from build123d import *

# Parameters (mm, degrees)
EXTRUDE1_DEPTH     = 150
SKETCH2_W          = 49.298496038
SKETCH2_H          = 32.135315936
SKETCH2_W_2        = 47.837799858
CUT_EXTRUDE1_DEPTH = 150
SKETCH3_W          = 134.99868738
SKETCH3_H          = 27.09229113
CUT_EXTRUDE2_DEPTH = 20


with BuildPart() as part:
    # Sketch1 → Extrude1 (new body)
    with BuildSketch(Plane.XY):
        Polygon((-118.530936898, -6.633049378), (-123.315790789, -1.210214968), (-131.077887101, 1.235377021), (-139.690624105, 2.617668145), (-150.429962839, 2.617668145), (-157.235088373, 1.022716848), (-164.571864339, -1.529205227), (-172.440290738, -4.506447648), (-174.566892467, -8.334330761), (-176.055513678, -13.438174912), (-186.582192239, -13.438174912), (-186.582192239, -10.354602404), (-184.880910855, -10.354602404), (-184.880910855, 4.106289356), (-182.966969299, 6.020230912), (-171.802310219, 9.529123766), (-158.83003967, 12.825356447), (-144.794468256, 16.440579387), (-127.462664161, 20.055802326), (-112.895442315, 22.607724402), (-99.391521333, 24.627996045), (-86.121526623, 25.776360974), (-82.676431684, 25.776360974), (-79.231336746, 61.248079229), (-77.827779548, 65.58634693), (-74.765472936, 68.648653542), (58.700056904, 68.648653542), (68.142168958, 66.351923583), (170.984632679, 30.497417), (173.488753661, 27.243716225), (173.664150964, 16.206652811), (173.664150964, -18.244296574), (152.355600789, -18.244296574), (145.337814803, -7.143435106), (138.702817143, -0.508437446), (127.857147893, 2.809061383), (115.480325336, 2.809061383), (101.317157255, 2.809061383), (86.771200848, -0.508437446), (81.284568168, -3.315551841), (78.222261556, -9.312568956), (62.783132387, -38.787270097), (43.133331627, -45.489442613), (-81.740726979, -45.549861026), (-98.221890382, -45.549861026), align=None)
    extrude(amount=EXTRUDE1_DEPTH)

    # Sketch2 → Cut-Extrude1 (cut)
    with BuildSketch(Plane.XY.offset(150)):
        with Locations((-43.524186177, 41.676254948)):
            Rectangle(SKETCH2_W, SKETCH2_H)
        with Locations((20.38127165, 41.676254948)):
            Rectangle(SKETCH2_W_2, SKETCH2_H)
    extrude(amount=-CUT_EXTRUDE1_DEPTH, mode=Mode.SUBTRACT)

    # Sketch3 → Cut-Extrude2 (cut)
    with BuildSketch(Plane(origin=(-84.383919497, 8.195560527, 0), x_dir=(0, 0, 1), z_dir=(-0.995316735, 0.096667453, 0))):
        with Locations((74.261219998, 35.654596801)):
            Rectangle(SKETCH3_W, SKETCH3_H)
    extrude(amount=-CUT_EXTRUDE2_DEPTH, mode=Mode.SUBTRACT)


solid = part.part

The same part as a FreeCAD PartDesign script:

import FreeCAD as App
import Part
import Sketcher
Q = App.Units.Quantity

doc = App.newDocument("Part")
body = doc.addObject("PartDesign::Body", "Body")

sketch1 = body.newObject("Sketcher::SketchObject", "Sketch")
sketch1.AttachmentSupport = (doc.getObject("XY_Plane"), [""])
sketch1.MapMode = "FlatFace"
sketch1.addGeometry([
    Part.LineSegment(App.Vector(-123.3, -1.2, 0), App.Vector(-118.5, -6.6, 0)),
    Part.LineSegment(App.Vector(-118.5, -6.6, 0), App.Vector(-98.2, -45.5, 0)),
    Part.LineSegment(App.Vector(-98.2, -45.5, 0), App.Vector(-81.7, -45.5, 0)),
    Part.LineSegment(App.Vector(-81.7, -45.5, 0), App.Vector(43.1, -45.5, 0)),
    Part.LineSegment(App.Vector(43.1, -45.5, 0), App.Vector(62.8, -38.8, 0)),
    Part.LineSegment(App.Vector(62.8, -38.8, 0), App.Vector(78.2, -9.3, 0)),
    Part.LineSegment(App.Vector(78.2, -9.3, 0), App.Vector(81.3, -3.3, 0)),
    Part.LineSegment(App.Vector(81.3, -3.3, 0), App.Vector(86.8, -0.5, 0)),
    Part.LineSegment(App.Vector(86.8, -0.5, 0), App.Vector(101.3, 2.8, 0)),
    Part.LineSegment(App.Vector(101.3, 2.8, 0), App.Vector(127.9, 2.8, 0)),
    Part.LineSegment(App.Vector(127.9, 2.8, 0), App.Vector(138.7, -0.5, 0)),
    Part.LineSegment(App.Vector(138.7, -0.5, 0), App.Vector(145.3, -7.1, 0)),
    Part.LineSegment(App.Vector(145.3, -7.1, 0), App.Vector(152.4, -18.2, 0)),
    Part.LineSegment(App.Vector(152.4, -18.2, 0), App.Vector(173.7, -18.2, 0)),
    Part.LineSegment(App.Vector(173.7, -18.2, 0), App.Vector(173.7, 16.2, 0)),
    Part.LineSegment(App.Vector(173.7, 16.2, 0), App.Vector(173.5, 27.2, 0)),
    Part.LineSegment(App.Vector(173.5, 27.2, 0), App.Vector(171, 30.5, 0)),
    Part.LineSegment(App.Vector(171, 30.5, 0), App.Vector(68.1, 66.4, 0)),
    Part.LineSegment(App.Vector(68.1, 66.4, 0), App.Vector(58.7, 68.6, 0)),
    Part.LineSegment(App.Vector(58.7, 68.6, 0), App.Vector(-74.8, 68.6, 0)),
    Part.LineSegment(App.Vector(-74.8, 68.6, 0), App.Vector(-77.8, 65.6, 0)),
    Part.LineSegment(App.Vector(-77.8, 65.6, 0), App.Vector(-79.2, 61.2, 0)),
    Part.LineSegment(App.Vector(-79.2, 61.2, 0), App.Vector(-82.7, 25.8, 0)),
    Part.LineSegment(App.Vector(-82.7, 25.8, 0), App.Vector(-86.1, 25.8, 0)),
    Part.LineSegment(App.Vector(-86.1, 25.8, 0), App.Vector(-99.4, 24.6, 0)),
    Part.LineSegment(App.Vector(-99.4, 24.6, 0), App.Vector(-112.9, 22.6, 0)),
    Part.LineSegment(App.Vector(-112.9, 22.6, 0), App.Vector(-127.5, 20.1, 0)),
    Part.LineSegment(App.Vector(-127.5, 20.1, 0), App.Vector(-144.8, 16.4, 0)),
    Part.LineSegment(App.Vector(-144.8, 16.4, 0), App.Vector(-158.8, 12.8, 0)),
    Part.LineSegment(App.Vector(-158.8, 12.8, 0), App.Vector(-171.8, 9.5, 0)),
    Part.LineSegment(App.Vector(-171.8, 9.5, 0), App.Vector(-183, 6, 0)),
    Part.LineSegment(App.Vector(-183, 6, 0), App.Vector(-184.9, 4.1, 0)),
    Part.LineSegment(App.Vector(-184.9, 4.1, 0), App.Vector(-184.9, -10.4, 0)),
    Part.LineSegment(App.Vector(-184.9, -10.4, 0), App.Vector(-186.6, -10.4, 0)),
    Part.LineSegment(App.Vector(-186.6, -10.4, 0), App.Vector(-186.6, -13.4, 0)),
    Part.LineSegment(App.Vector(-186.6, -13.4, 0), App.Vector(-176.1, -13.4, 0)),
    Part.LineSegment(App.Vector(-176.1, -13.4, 0), App.Vector(-174.6, -8.3, 0)),
    Part.LineSegment(App.Vector(-174.6, -8.3, 0), App.Vector(-172.4, -4.5, 0)),
    Part.LineSegment(App.Vector(-172.4, -4.5, 0), App.Vector(-164.6, -1.5, 0)),
    Part.LineSegment(App.Vector(-164.6, -1.5, 0), App.Vector(-157.2, 1, 0)),
    Part.LineSegment(App.Vector(-157.2, 1, 0), App.Vector(-150.4, 2.6, 0)),
    Part.LineSegment(App.Vector(-150.4, 2.6, 0), App.Vector(-139.7, 2.6, 0)),
    Part.LineSegment(App.Vector(-139.7, 2.6, 0), App.Vector(-131.1, 1.2, 0)),
    Part.LineSegment(App.Vector(-131.1, 1.2, 0), App.Vector(-123.3, -1.2, 0)),
], False)
sketch1.addConstraint([
    Sketcher.Constraint("Coincident", 0, 2, 1, 1),
    Sketcher.Constraint("Coincident", 1, 2, 2, 1),
    Sketcher.Constraint("Coincident", 2, 2, 3, 1),
    Sketcher.Constraint("Coincident", 3, 2, 4, 1),
    Sketcher.Constraint("Coincident", 4, 2, 5, 1),
    Sketcher.Constraint("Coincident", 5, 2, 6, 1),
    Sketcher.Constraint("Coincident", 6, 2, 7, 1),
    Sketcher.Constraint("Coincident", 7, 2, 8, 1),
    Sketcher.Constraint("Coincident", 8, 2, 9, 1),
    Sketcher.Constraint("Coincident", 9, 2, 10, 1),
    Sketcher.Constraint("Coincident", 10, 2, 11, 1),
    Sketcher.Constraint("Coincident", 11, 2, 12, 1),
    Sketcher.Constraint("Coincident", 12, 2, 13, 1),
    Sketcher.Constraint("Coincident", 13, 2, 14, 1),
    Sketcher.Constraint("Coincident", 14, 2, 15, 1),
    Sketcher.Constraint("Coincident", 15, 2, 16, 1),
    Sketcher.Constraint("Coincident", 16, 2, 17, 1),
    Sketcher.Constraint("Coincident", 17, 2, 18, 1),
    Sketcher.Constraint("Coincident", 18, 2, 19, 1),
    Sketcher.Constraint("Coincident", 19, 2, 20, 1),
    Sketcher.Constraint("Coincident", 20, 2, 21, 1),
    Sketcher.Constraint("Coincident", 21, 2, 22, 1),
    Sketcher.Constraint("Coincident", 22, 2, 23, 1),
    Sketcher.Constraint("Coincident", 23, 2, 24, 1),
    Sketcher.Constraint("Coincident", 24, 2, 25, 1),
    Sketcher.Constraint("Coincident", 25, 2, 26, 1),
    Sketcher.Constraint("Coincident", 26, 2, 27, 1),
    Sketcher.Constraint("Coincident", 27, 2, 28, 1),
    Sketcher.Constraint("Coincident", 28, 2, 29, 1),
    Sketcher.Constraint("Coincident", 29, 2, 30, 1),
    Sketcher.Constraint("Coincident", 30, 2, 31, 1),
    Sketcher.Constraint("Coincident", 31, 2, 32, 1),
    Sketcher.Constraint("Coincident", 32, 2, 33, 1),
    Sketcher.Constraint("Coincident", 33, 2, 34, 1),
    Sketcher.Constraint("Coincident", 34, 2, 35, 1),
    Sketcher.Constraint("Coincident", 35, 2, 36, 1),
    Sketcher.Constraint("Coincident", 36, 2, 37, 1),
    Sketcher.Constraint("Coincident", 37, 2, 38, 1),
    Sketcher.Constraint("Coincident", 38, 2, 39, 1),
    Sketcher.Constraint("Coincident", 39, 2, 40, 1),
    Sketcher.Constraint("Coincident", 40, 2, 41, 1),
    Sketcher.Constraint("Coincident", 41, 2, 42, 1),
    Sketcher.Constraint("Coincident", 42, 2, 43, 1),
    Sketcher.Constraint("Coincident", 43, 2, 0, 1),
    Sketcher.Constraint("Horizontal", 2),
    Sketcher.Constraint("Horizontal", 9),
    Sketcher.Constraint("Horizontal", 13),
    Sketcher.Constraint("Vertical", 14),
    Sketcher.Constraint("Horizontal", 19),
    Sketcher.Constraint("Horizontal", 23),
    Sketcher.Constraint("Vertical", 32),
    Sketcher.Constraint("Horizontal", 33),
    Sketcher.Constraint("Vertical", 34),
    Sketcher.Constraint("Horizontal", 35),
    Sketcher.Constraint("Horizontal", 41),
    Sketcher.Constraint("Perpendicular", 11, 20),
    Sketcher.Constraint("Parallel", 20, 31),
    Sketcher.Constraint("Horizontal", 7, 2, 10, 2),
    Sketcher.Constraint("Angle", 11, Q("-45 deg")),
    Sketcher.Constraint("DistanceX", 9, 1, 9, 2, 26.539991),
    Sketcher.Constraint("DistanceX", 13, 1, 13, 2, 21.30855),
    Sketcher.Constraint("DistanceX", 19, 2, 19, 1, 133.46553),
    Sketcher.Constraint("DistanceX", 33, 2, 33, 1, 1.701281),
    Sketcher.Constraint("DistanceX", 35, 1, 35, 2, 10.526679),
    Sketcher.Constraint("DistanceX", 41, 1, 41, 2, 10.739339),
    Sketcher.Constraint("DistanceY", 14, 1, 14, 2, 34.450949),
    Sketcher.Constraint("DistanceY", 32, 2, 32, 1, 14.460892),
    Sketcher.Constraint("DistanceX", -1, 1, 7, 2, 86.771201),
    Sketcher.Constraint("DistanceX", -1, 1, 12, 2, 152.355601),
    Sketcher.Constraint("DistanceX", 3, 2, 4, 2, 19.649801),
    Sketcher.Constraint("DistanceY", 4, 2, 5, 2, 29.474701),
    Sketcher.Constraint("DistanceX", 0, 2, 5, 2, 196.753198),
    Sketcher.Constraint("DistanceY", 7, 2, 8, 2, 3.317499),
    Sketcher.Constraint("DistanceY", 15, 2, 16, 2, 3.253701),
    Sketcher.Constraint("DistanceX", 17, 2, 6, 2, 13.142399),
    Sketcher.Constraint("DistanceX", 18, 2, 8, 2, 42.6171),
    Sketcher.Constraint("DistanceX", 0, 2, 21, 2, 39.2996),
    Sketcher.Constraint("DistanceY", 29, 2, 25, 2, 13.078601),
    Sketcher.Constraint("DistanceX", 30, 2, 27, 2, 38.172501),
    Sketcher.Constraint("DistanceX", 31, 2, 29, 2, 13.078601),
    Sketcher.Constraint("DistanceY", 34, 2, 29, 2, 22.967299),
    Sketcher.Constraint("DistanceX", 33, 2, 36, 2, 12.0153),
    Sketcher.Constraint("DistanceX", 36, 2, 37, 2, 2.126602),
    Sketcher.Constraint("DistanceX", 38, 2, 40, 2, 14.141901),
    Sketcher.Constraint("Distance", 0, 7.232009),
    Sketcher.Constraint("Distance", 1, 43.89733),
    Sketcher.Constraint("Distance", 16, 4.105751),
    Sketcher.Constraint("Distance", 17, 108.913351),
    Sketcher.Constraint("Distance", 18, 9.71743),
    Sketcher.Constraint("Distance", 24, 13.319591),
    Sketcher.Constraint("Distance", 26, 14.789059),
    Sketcher.Constraint("Distance", 28, 14.493692),
    Sketcher.Constraint("Distance", 37, 4.378941),
    Sketcher.Constraint("Distance", 39, 7.76792),
    Sketcher.Constraint("DistanceX", 2, 1, 2, 2, 16.481163),
    Sketcher.Constraint("DistanceX", 23, 2, 23, 1, 3.445095),
    Sketcher.Constraint("DistanceY", 34, 2, 34, 1, 3.083573),
    Sketcher.Constraint("DistanceY", 0, 2, -1, 1, 6.633049),
    Sketcher.Constraint("DistanceX", 1, 2, -1, 1, 98.22189),
    Sketcher.Constraint("DistanceY", 1, 2, -1, 1, 45.549861),
    Sketcher.Constraint("DistanceX", -1, 1, 3, 2, 43.133332),
    Sketcher.Constraint("DistanceY", 4, 2, -1, 1, 38.78727),
    Sketcher.Constraint("DistanceX", -1, 1, 6, 2, 81.284568),
    Sketcher.Constraint("DistanceY", 6, 2, -1, 1, 3.315552),
    Sketcher.Constraint("DistanceY", -1, 1, 8, 2, 2.809061),
    Sketcher.Constraint("DistanceX", 20, 2, -1, 1, 77.82778),
    Sketcher.Constraint("DistanceY", -1, 1, 21, 2, 61.248079),
    Sketcher.Constraint("DistanceX", 22, 2, -1, 1, 82.676432),
    Sketcher.Constraint("DistanceY", -1, 1, 22, 2, 25.776361),
    Sketcher.Constraint("DistanceX", 24, 2, -1, 1, 99.391521),
    Sketcher.Constraint("DistanceX", 27, 2, -1, 1, 144.794468),
    Sketcher.Constraint("DistanceY", -1, 1, 27, 2, 16.440579),
    Sketcher.Constraint("DistanceX", 28, 2, -1, 1, 158.83004),
    Sketcher.Constraint("DistanceX", 29, 2, -1, 1, 171.80231),
    Sketcher.Constraint("DistanceY", -1, 1, 30, 2, 6.020231),
    Sketcher.Constraint("DistanceY", 36, 2, -1, 1, 8.334331),
    Sketcher.Constraint("DistanceX", 39, 2, -1, 1, 157.235088),
    Sketcher.Constraint("DistanceY", -1, 1, 40, 2, 2.617668),
    Sketcher.Constraint("DistanceX", 43, 2, -1, 1, 123.315791),
    Sketcher.Constraint("DistanceY", 2, 2, 3, 2, 0.060418),
    Sketcher.Constraint("DistanceX", 6, 2, 8, 2, 20.032589),
    Sketcher.Constraint("DistanceX", 9, 2, 10, 2, 10.845669),
    Sketcher.Constraint("DistanceY", 12, 2, 11, 2, 11.100861),
    Sketcher.Constraint("DistanceY", 12, 2, 10, 2, 17.735859),
    Sketcher.Constraint("DistanceX", 11, 2, 15, 2, 28.150939),
    Sketcher.Constraint("DistanceY", 11, 2, 15, 2, 34.387151),
    Sketcher.Constraint("DistanceX", 25, 2, 24, 2, 13.503921),
    Sketcher.Constraint("DistanceX", 26, 2, 25, 2, 14.567222),
    Sketcher.Constraint("DistanceX", 36, 2, 38, 2, 9.995028),
    Sketcher.Constraint("DistanceY", 38, 2, 29, 2, 11.058329),
    Sketcher.Constraint("DistanceY", 42, 2, 41, 2, 1.382291),
    Sketcher.Constraint("DistanceX", 42, 2, 0, 2, 12.54695),
])
pad1 = body.newObject("PartDesign::Pad", "Pad")
pad1.Profile = sketch1
pad1.Length = 150

sketch2 = body.newObject("Sketcher::SketchObject", "Sketch001")
sketch2.AttachmentSupport = (doc.getObject("XY_Plane"), [""])
sketch2.MapMode = "FlatFace"
sketch2.AttachmentOffset = App.Placement(App.Vector(0, 0, 150), App.Rotation())
sketch2.addGeometry([
    Part.LineSegment(App.Vector(-68, 58, 0), App.Vector(-68, 26, 0)),
    Part.LineSegment(App.Vector(-68, 26, 0), App.Vector(-19, 26, 0)),
    Part.LineSegment(App.Vector(-19, 26, 0), App.Vector(-19, 58, 0)),
    Part.LineSegment(App.Vector(-19, 58, 0), App.Vector(-68, 58, 0)),
    Part.LineSegment(App.Vector(-4, 58, 0), App.Vector(-4, 26, 0)),
    Part.LineSegment(App.Vector(-4, 26, 0), App.Vector(44, 26, 0)),
    Part.LineSegment(App.Vector(44, 26, 0), App.Vector(44, 58, 0)),
    Part.LineSegment(App.Vector(44, 58, 0), App.Vector(-4, 58, 0)),
], False)
sketch2.addConstraint([
    Sketcher.Constraint("Coincident", 0, 2, 1, 1),
    Sketcher.Constraint("Coincident", 1, 2, 2, 1),
    Sketcher.Constraint("Coincident", 2, 2, 3, 1),
    Sketcher.Constraint("Coincident", 3, 2, 0, 1),
    Sketcher.Constraint("Coincident", 4, 2, 5, 1),
    Sketcher.Constraint("Coincident", 5, 2, 6, 1),
    Sketcher.Constraint("Coincident", 6, 2, 7, 1),
    Sketcher.Constraint("Coincident", 7, 2, 4, 1),
    Sketcher.Constraint("Vertical", 0),
    Sketcher.Constraint("Horizontal", 1),
    Sketcher.Constraint("Vertical", 2),
    Sketcher.Constraint("Horizontal", 3),
    Sketcher.Constraint("Vertical", 4),
    Sketcher.Constraint("Horizontal", 5),
    Sketcher.Constraint("Vertical", 6),
    Sketcher.Constraint("Horizontal", 7),
    Sketcher.Constraint("Horizontal", 1, 2, 4, 2),
    Sketcher.Constraint("Horizontal", 3, 2, 6, 2),
    Sketcher.Constraint("DistanceX", 5, 1, 5, 2, 47.8378),
    Sketcher.Constraint("DistanceX", 1, 1, 1, 2, 49.298496),
    Sketcher.Constraint("DistanceY", 0, 2, 0, 1, 32.135316),
    Sketcher.Constraint("DistanceX", 1, 2, -1, 1, 18.874938),
    Sketcher.Constraint("DistanceX", 4, 2, -1, 1, 3.537628),
    Sketcher.Constraint("DistanceY", -1, 1, 0, 2, 25.608597),
])
pocket1 = body.newObject("PartDesign::Pocket", "Pocket")
pocket1.Profile = sketch2
pocket1.Length = 150

sketch3 = body.newObject("Sketcher::SketchObject", "Sketch002")
sketch3.Placement = App.Placement(App.Vector(-84.383919, 8.195561, 0), App.Rotation(App.Vector(0, 0, 1), App.Vector(0.096667453, 0.995316735, 0), App.Vector(-0.995316735, 0.096667453, 0), "ZXY"))
sketch3.addGeometry([
    Part.LineSegment(App.Vector(7, 49, 0), App.Vector(7, 22, 0)),
    Part.LineSegment(App.Vector(7, 22, 0), App.Vector(142, 22, 0)),
    Part.LineSegment(App.Vector(142, 22, 0), App.Vector(142, 49, 0)),
    Part.LineSegment(App.Vector(142, 49, 0), App.Vector(7, 49, 0)),
], False)
sketch3.addConstraint([
    Sketcher.Constraint("Coincident", 0, 2, 1, 1),
    Sketcher.Constraint("Coincident", 1, 2, 2, 1),
    Sketcher.Constraint("Coincident", 2, 2, 3, 1),
    Sketcher.Constraint("Coincident", 3, 2, 0, 1),
    Sketcher.Constraint("Vertical", 0),
    Sketcher.Constraint("Horizontal", 1),
    Sketcher.Constraint("Vertical", 2),
    Sketcher.Constraint("Horizontal", 3),
    Sketcher.Constraint("DistanceY", 0, 2, 0, 1, 27.092291),
    Sketcher.Constraint("DistanceX", 1, 1, 1, 2, 134.998687),
    Sketcher.Constraint("DistanceY", -1, 1, 0, 2, 22.108451),
    Sketcher.Constraint("DistanceX", -1, 1, 0, 2, 6.761876),
])
pocket2 = body.newObject("PartDesign::Pocket", "Pocket001")
pocket2.Profile = sketch3
pocket2.Length = 20

doc.recompute()
